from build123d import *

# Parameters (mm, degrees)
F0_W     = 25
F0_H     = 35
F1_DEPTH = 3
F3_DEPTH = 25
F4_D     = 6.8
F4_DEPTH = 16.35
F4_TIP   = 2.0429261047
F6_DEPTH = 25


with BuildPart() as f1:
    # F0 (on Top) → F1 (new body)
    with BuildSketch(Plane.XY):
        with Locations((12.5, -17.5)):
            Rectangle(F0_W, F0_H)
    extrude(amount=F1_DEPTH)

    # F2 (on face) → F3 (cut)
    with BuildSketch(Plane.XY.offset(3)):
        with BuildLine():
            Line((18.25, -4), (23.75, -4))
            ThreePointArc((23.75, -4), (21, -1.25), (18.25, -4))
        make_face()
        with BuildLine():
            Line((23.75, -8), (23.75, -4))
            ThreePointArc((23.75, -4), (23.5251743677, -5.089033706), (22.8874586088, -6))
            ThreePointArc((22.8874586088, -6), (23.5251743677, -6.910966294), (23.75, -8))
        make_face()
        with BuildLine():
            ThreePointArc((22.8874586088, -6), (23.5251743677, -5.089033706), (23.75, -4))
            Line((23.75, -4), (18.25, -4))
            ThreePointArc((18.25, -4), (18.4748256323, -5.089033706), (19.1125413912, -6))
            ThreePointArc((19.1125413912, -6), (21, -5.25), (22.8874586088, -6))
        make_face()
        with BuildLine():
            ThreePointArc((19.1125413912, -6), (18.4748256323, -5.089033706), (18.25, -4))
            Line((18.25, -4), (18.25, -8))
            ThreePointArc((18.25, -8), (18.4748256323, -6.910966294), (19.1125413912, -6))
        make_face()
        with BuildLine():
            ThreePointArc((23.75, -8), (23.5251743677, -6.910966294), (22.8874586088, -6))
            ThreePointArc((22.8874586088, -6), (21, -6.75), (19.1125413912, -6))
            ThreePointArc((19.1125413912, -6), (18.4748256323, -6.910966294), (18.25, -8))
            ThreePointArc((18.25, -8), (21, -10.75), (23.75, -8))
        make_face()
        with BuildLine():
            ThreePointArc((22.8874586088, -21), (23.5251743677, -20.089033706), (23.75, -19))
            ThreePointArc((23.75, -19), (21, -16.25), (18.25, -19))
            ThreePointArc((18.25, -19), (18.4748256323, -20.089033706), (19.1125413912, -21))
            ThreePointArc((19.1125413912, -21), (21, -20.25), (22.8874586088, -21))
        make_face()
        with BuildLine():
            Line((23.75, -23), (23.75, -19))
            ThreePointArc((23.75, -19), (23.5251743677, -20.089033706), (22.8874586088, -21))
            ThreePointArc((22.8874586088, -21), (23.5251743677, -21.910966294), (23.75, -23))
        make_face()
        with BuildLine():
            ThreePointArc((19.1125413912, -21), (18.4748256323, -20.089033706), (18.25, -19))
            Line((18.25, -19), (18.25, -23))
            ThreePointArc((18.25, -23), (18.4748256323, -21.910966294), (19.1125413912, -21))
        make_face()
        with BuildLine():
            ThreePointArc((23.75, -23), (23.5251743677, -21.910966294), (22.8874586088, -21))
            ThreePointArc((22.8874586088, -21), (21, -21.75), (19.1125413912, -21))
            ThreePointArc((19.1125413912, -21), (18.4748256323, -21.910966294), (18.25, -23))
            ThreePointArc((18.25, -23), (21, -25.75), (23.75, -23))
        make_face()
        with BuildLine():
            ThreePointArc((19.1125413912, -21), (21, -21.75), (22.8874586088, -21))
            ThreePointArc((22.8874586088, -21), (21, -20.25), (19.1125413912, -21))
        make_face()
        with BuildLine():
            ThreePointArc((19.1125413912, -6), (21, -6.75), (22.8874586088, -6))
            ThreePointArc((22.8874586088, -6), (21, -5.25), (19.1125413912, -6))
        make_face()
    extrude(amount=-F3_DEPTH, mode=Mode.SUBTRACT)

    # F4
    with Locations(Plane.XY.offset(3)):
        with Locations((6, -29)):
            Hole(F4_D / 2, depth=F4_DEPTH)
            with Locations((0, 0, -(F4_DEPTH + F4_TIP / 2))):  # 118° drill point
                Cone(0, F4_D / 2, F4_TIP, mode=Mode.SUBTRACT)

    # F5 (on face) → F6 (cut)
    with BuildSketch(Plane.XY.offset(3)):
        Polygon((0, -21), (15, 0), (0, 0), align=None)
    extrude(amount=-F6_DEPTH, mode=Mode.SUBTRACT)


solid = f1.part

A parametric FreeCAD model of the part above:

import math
import FreeCAD as App
import Part
import Sketcher

V = App.Vector
Q = App.Units.Quantity


def add_polygon(sketch, points):
    """Adds a closed chain of lines whose ends are joined by coincident constraints."""
    first, n = sketch.GeometryCount, len(points)
    for a, b in zip(points, points[1:] + points[:1]):
        sketch.addGeometry(Part.LineSegment(App.Vector(*a, 0), App.Vector(*b, 0)), False)
    for i in range(n):
        sketch.addConstraint(Sketcher.Constraint("Coincident", first + i, 2, first + (i + 1) % n, 1))

doc = App.newDocument("Part")
body = doc.addObject("PartDesign::Body", "Body")

sketch1 = doc.addObject("Sketcher::SketchObject", "Sketch")
body.addObject(sketch1)
sketch1.AttachmentSupport = (doc.XY_Plane, [""])
sketch1.MapMode = "FlatFace"
add_polygon(sketch1, [(0, 0), (0, -35), (25, -35), (25, 0)])
sketch1.addConstraint([
    Sketcher.Constraint("Vertical", 0),
    Sketcher.Constraint("Horizontal", 1),
    Sketcher.Constraint("Vertical", 2),
    Sketcher.Constraint("Horizontal", 3),
    Sketcher.Constraint("Coincident", 3, 2, -1, 1),
    Sketcher.Constraint("DistanceX", 1, 1, 1, 2, Q("25 mm")),
    Sketcher.Constraint("DistanceY", 0, 2, 0, 1, Q("35 mm")),
])
pad1 = doc.addObject("PartDesign::Pad", "Pad")
body.addObject(pad1)
pad1.Profile = sketch1
pad1.Length = 3

sketch2 = doc.addObject("Sketcher::SketchObject", "Sketch001")
body.addObject(sketch2)
sketch2.AttachmentSupport = (doc.XY_Plane, [""])
sketch2.MapMode = "FlatFace"
sketch2.AttachmentOffset = App.Placement(V(0, 0, 3), App.Rotation())
sketch2.addGeometry([
    Part.ArcOfCircle(Part.Circle(V(21, -4, 0), V(0, 0, 1), 2.8), math.radians(0), math.radians(180)),
    Part.LineSegment(V(18.2, -4, 0), V(18.2, -8, 0)),
    Part.ArcOfCircle(Part.Circle(V(21, -8, 0), V(0, 0, 1), 2.8), math.radians(180), math.radians(360)),
    Part.LineSegment(V(23.8, -8, 0), V(23.8, -4, 0)),
    Part.ArcOfCircle(Part.Circle(V(21, -19, 0), V(0, 0, 1), 2.8), math.radians(0), math.radians(180)),
    Part.LineSegment(V(18.2, -19, 0), V(18.2, -23, 0)),
    Part.ArcOfCircle(Part.Circle(V(21, -23, 0), V(0, 0, 1), 2.8), math.radians(180), math.radians(360)),
    Part.LineSegment(V(23.8, -23, 0), V(23.8, -19, 0)),
], False)
sketch2.addConstraint([
    Sketcher.Constraint("Tangent", 0, 2, 1, 1),
    Sketcher.Constraint("Tangent", 1, 2, 2, 1),
    Sketcher.Constraint("Tangent", 2, 2, 3, 1),
    Sketcher.Constraint("Tangent", 3, 2, 0, 1),
    Sketcher.Constraint("Tangent", 4, 2, 5, 1),
    Sketcher.Constraint("Tangent", 5, 2, 6, 1),
    Sketcher.Constraint("Tangent", 6, 2, 7, 1),
    Sketcher.Constraint("Tangent", 7, 2, 4, 1),
    Sketcher.Constraint("Vertical", 1),
    Sketcher.Constraint("Vertical", 3),
    Sketcher.Constraint("Vertical", 5),
    Sketcher.Constraint("Vertical", 7),
    Sketcher.Constraint("Equal", 2, 4),
    Sketcher.Constraint("Vertical", 2, 3, 4, 3),
    Sketcher.Constraint("Equal", 3, 5),
    Sketcher.Constraint("DistanceY", 1, 2, 1, 1, Q("4 mm")),
    Sketcher.Constraint("Radius", 0, Q("2.75 mm")),
    Sketcher.Constraint("DistanceX", -1, 1, 0, 3, Q("21 mm")),
    Sketcher.Constraint("DistanceY", 0, 3, -1, 1, Q("4 mm")),
    Sketcher.Constraint("DistanceY", 4, 3, -1, 1, Q("19 mm")),
])
pocket1 = doc.addObject("PartDesign::Pocket", "Pocket")
body.addObject(pocket1)
pocket1.Profile = sketch2
pocket1.Length = 25

sketch3 = doc.addObject("Sketcher::SketchObject", "Sketch002")
body.addObject(sketch3)
sketch3.AttachmentSupport = (doc.XY_Plane, [""])
sketch3.MapMode = "FlatFace"
sketch3.AttachmentOffset = App.Placement(V(0, 0, 3), App.Rotation())
sketch3.addGeometry(Part.Circle(V(6, -29, 0), V(0, 0, 1), 3.4), False)
sketch3.addConstraint([
    Sketcher.Constraint("Diameter", 0, Q("6.8 mm")),
    Sketcher.Constraint("DistanceX", -1, 1, 0, 3, Q("6 mm")),
    Sketcher.Constraint("DistanceY", 0, 3, -1, 1, Q("29 mm")),
])
doc.recompute()
hole = doc.addObject("PartDesign::Hole", "Hole")
body.addObject(hole)
hole.Profile = sketch3
hole.ThreadType = "None"
hole.Diameter = 6.8
hole.DepthType = "Dimension"
hole.Depth = 16.35
hole.DrillPoint = "Angled"
hole.DrillPointAngle = 118

sketch4 = doc.addObject("Sketcher::SketchObject", "Sketch003")
body.addObject(sketch4)
sketch4.AttachmentSupport = (doc.XY_Plane, [""])
sketch4.MapMode = "FlatFace"
sketch4.AttachmentOffset = App.Placement(V(0, 0, 3), App.Rotation())
add_polygon(sketch4, [(0, -21), (15, 0), (0, 0)])
sketch4.addConstraint([
    Sketcher.Constraint("Horizontal", 1),
    Sketcher.Constraint("Vertical", 2),
    Sketcher.Constraint("Coincident", 1, 2, -1, 1),
    Sketcher.Constraint("DistanceX", 1, 2, 1, 1, Q("15 mm")),
    Sketcher.Constraint("DistanceY", 2, 2, 2, 1, Q("21 mm")),
])
pocket2 = doc.addObject("PartDesign::Pocket", "Pocket001")
body.addObject(pocket2)
pocket2.Profile = sketch4
pocket2.Length = 25

doc.recompute()
